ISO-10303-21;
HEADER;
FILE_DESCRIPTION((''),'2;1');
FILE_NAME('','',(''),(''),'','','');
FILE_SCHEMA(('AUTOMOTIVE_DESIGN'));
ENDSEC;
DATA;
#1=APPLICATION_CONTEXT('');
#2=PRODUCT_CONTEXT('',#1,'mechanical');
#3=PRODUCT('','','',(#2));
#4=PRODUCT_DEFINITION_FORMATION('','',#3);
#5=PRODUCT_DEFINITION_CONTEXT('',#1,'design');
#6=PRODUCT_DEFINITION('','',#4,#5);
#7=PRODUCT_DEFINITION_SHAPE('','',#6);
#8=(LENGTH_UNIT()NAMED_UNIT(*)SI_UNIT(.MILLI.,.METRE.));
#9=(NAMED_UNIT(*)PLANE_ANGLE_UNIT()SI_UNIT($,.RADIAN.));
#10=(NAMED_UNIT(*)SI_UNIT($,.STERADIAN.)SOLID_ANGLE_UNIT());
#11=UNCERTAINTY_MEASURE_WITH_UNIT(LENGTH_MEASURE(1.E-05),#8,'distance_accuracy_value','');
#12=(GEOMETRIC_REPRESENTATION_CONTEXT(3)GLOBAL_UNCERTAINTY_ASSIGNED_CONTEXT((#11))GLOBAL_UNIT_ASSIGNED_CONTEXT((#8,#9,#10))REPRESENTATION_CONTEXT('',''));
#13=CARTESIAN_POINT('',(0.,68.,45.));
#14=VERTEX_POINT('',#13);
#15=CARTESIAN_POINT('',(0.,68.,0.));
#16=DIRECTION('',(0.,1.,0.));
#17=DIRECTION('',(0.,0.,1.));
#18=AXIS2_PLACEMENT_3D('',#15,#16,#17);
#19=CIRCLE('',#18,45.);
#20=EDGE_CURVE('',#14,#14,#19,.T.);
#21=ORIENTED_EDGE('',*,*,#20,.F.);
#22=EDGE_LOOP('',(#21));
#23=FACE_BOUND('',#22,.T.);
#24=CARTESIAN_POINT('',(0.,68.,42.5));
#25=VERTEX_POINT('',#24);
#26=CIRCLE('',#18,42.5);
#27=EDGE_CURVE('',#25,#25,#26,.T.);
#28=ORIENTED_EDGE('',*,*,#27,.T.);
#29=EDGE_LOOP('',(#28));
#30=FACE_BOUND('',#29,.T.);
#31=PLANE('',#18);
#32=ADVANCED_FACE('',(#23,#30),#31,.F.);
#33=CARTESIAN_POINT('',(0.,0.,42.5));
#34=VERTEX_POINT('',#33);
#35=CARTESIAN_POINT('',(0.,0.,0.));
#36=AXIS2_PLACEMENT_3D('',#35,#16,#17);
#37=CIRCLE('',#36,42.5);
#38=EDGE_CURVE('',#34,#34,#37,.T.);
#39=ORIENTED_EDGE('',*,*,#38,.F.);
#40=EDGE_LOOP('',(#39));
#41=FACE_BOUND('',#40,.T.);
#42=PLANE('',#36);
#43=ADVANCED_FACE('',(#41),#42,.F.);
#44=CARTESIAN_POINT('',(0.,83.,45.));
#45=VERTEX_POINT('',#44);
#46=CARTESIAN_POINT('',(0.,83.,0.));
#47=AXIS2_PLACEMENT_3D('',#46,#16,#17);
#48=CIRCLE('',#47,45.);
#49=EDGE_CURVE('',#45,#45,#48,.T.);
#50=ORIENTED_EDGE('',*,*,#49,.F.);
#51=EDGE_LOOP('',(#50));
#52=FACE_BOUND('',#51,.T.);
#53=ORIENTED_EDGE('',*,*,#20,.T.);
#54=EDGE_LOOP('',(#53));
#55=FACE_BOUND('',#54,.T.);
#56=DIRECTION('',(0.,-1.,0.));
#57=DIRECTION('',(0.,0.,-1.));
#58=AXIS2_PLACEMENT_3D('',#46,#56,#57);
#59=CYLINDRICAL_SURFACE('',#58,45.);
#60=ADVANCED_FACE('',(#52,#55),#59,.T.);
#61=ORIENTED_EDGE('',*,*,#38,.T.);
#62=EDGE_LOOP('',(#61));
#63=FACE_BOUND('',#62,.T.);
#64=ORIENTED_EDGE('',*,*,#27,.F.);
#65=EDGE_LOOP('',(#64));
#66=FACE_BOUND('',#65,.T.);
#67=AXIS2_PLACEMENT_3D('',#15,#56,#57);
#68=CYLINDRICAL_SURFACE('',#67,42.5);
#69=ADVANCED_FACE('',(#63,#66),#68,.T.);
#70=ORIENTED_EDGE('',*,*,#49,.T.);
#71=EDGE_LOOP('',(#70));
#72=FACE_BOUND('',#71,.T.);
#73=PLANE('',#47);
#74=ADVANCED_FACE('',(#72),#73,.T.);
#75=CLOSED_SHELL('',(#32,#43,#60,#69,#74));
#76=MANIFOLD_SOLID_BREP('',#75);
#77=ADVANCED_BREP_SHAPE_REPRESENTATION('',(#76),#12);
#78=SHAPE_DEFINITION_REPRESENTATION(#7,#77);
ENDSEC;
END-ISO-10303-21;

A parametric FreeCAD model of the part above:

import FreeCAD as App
import Part
import Sketcher
Q = App.Units.Quantity

doc = App.newDocument("Part")
params = doc.addObject("Spreadsheet::Sheet", "Params")
for row, (alias, value) in enumerate([
    ("sketch1_diameter", "85 mm"),
    ("pad1_length", "68 mm"),
    ("sketch2_diameter", "90 mm"),
    ("pad2_length", "15 mm"),
], start=1):
    params.set(f"A{row}", alias)
    params.set(f"B{row}", "=" + value)
    params.setAlias(f"B{row}", alias)

body = doc.addObject("PartDesign::Body", "Body")

# Sketch on XZ plane
sketch1 = body.newObject("Sketcher::SketchObject", "Sketch")
sketch1.AttachmentSupport = (doc.getObject("XZ_Plane"), [""])
sketch1.MapMode = "FlatFace"
sketch1.addGeometry(Part.Circle(App.Vector(0, 0, 0), App.Vector(0, 0, 1), 42), False)
sketch1.addConstraint([
    Sketcher.Constraint("Coincident", 0, 3, -1, 1),
    Sketcher.Constraint("Diameter", 0, Q("85 mm")),
])
sketch1.setExpression("Constraints[1]", "Params.sketch1_diameter")
pad1 = body.newObject("PartDesign::Pad", "Pad")
pad1.Profile = sketch1
pad1.setExpression("Length", "Params.pad1_length")
pad1.Reversed = True

# Sketch on XZ plane
sketch2 = body.newObject("Sketcher::SketchObject", "Sketch001")
sketch2.AttachmentSupport = (doc.getObject("XZ_Plane"), [""])
sketch2.MapMode = "FlatFace"
sketch2.AttachmentOffset = App.Placement(App.Vector(0, 0, -68), App.Rotation())
sketch2.addGeometry(Part.Circle(App.Vector(0, 0, 0), App.Vector(0, 0, 1), 45), False)
sketch2.addConstraint([
    Sketcher.Constraint("Coincident", 0, 3, -1, 1),
    Sketcher.Constraint("Diameter", 0, Q("90 mm")),
])
sketch2.setExpression("Constraints[1]", "Params.sketch2_diameter")
pad2 = body.newObject("PartDesign::Pad", "Pad001")
pad2.Profile = sketch2
pad2.setExpression("Length", "Params.pad2_length")
pad2.Reversed = True

doc.recompute()
